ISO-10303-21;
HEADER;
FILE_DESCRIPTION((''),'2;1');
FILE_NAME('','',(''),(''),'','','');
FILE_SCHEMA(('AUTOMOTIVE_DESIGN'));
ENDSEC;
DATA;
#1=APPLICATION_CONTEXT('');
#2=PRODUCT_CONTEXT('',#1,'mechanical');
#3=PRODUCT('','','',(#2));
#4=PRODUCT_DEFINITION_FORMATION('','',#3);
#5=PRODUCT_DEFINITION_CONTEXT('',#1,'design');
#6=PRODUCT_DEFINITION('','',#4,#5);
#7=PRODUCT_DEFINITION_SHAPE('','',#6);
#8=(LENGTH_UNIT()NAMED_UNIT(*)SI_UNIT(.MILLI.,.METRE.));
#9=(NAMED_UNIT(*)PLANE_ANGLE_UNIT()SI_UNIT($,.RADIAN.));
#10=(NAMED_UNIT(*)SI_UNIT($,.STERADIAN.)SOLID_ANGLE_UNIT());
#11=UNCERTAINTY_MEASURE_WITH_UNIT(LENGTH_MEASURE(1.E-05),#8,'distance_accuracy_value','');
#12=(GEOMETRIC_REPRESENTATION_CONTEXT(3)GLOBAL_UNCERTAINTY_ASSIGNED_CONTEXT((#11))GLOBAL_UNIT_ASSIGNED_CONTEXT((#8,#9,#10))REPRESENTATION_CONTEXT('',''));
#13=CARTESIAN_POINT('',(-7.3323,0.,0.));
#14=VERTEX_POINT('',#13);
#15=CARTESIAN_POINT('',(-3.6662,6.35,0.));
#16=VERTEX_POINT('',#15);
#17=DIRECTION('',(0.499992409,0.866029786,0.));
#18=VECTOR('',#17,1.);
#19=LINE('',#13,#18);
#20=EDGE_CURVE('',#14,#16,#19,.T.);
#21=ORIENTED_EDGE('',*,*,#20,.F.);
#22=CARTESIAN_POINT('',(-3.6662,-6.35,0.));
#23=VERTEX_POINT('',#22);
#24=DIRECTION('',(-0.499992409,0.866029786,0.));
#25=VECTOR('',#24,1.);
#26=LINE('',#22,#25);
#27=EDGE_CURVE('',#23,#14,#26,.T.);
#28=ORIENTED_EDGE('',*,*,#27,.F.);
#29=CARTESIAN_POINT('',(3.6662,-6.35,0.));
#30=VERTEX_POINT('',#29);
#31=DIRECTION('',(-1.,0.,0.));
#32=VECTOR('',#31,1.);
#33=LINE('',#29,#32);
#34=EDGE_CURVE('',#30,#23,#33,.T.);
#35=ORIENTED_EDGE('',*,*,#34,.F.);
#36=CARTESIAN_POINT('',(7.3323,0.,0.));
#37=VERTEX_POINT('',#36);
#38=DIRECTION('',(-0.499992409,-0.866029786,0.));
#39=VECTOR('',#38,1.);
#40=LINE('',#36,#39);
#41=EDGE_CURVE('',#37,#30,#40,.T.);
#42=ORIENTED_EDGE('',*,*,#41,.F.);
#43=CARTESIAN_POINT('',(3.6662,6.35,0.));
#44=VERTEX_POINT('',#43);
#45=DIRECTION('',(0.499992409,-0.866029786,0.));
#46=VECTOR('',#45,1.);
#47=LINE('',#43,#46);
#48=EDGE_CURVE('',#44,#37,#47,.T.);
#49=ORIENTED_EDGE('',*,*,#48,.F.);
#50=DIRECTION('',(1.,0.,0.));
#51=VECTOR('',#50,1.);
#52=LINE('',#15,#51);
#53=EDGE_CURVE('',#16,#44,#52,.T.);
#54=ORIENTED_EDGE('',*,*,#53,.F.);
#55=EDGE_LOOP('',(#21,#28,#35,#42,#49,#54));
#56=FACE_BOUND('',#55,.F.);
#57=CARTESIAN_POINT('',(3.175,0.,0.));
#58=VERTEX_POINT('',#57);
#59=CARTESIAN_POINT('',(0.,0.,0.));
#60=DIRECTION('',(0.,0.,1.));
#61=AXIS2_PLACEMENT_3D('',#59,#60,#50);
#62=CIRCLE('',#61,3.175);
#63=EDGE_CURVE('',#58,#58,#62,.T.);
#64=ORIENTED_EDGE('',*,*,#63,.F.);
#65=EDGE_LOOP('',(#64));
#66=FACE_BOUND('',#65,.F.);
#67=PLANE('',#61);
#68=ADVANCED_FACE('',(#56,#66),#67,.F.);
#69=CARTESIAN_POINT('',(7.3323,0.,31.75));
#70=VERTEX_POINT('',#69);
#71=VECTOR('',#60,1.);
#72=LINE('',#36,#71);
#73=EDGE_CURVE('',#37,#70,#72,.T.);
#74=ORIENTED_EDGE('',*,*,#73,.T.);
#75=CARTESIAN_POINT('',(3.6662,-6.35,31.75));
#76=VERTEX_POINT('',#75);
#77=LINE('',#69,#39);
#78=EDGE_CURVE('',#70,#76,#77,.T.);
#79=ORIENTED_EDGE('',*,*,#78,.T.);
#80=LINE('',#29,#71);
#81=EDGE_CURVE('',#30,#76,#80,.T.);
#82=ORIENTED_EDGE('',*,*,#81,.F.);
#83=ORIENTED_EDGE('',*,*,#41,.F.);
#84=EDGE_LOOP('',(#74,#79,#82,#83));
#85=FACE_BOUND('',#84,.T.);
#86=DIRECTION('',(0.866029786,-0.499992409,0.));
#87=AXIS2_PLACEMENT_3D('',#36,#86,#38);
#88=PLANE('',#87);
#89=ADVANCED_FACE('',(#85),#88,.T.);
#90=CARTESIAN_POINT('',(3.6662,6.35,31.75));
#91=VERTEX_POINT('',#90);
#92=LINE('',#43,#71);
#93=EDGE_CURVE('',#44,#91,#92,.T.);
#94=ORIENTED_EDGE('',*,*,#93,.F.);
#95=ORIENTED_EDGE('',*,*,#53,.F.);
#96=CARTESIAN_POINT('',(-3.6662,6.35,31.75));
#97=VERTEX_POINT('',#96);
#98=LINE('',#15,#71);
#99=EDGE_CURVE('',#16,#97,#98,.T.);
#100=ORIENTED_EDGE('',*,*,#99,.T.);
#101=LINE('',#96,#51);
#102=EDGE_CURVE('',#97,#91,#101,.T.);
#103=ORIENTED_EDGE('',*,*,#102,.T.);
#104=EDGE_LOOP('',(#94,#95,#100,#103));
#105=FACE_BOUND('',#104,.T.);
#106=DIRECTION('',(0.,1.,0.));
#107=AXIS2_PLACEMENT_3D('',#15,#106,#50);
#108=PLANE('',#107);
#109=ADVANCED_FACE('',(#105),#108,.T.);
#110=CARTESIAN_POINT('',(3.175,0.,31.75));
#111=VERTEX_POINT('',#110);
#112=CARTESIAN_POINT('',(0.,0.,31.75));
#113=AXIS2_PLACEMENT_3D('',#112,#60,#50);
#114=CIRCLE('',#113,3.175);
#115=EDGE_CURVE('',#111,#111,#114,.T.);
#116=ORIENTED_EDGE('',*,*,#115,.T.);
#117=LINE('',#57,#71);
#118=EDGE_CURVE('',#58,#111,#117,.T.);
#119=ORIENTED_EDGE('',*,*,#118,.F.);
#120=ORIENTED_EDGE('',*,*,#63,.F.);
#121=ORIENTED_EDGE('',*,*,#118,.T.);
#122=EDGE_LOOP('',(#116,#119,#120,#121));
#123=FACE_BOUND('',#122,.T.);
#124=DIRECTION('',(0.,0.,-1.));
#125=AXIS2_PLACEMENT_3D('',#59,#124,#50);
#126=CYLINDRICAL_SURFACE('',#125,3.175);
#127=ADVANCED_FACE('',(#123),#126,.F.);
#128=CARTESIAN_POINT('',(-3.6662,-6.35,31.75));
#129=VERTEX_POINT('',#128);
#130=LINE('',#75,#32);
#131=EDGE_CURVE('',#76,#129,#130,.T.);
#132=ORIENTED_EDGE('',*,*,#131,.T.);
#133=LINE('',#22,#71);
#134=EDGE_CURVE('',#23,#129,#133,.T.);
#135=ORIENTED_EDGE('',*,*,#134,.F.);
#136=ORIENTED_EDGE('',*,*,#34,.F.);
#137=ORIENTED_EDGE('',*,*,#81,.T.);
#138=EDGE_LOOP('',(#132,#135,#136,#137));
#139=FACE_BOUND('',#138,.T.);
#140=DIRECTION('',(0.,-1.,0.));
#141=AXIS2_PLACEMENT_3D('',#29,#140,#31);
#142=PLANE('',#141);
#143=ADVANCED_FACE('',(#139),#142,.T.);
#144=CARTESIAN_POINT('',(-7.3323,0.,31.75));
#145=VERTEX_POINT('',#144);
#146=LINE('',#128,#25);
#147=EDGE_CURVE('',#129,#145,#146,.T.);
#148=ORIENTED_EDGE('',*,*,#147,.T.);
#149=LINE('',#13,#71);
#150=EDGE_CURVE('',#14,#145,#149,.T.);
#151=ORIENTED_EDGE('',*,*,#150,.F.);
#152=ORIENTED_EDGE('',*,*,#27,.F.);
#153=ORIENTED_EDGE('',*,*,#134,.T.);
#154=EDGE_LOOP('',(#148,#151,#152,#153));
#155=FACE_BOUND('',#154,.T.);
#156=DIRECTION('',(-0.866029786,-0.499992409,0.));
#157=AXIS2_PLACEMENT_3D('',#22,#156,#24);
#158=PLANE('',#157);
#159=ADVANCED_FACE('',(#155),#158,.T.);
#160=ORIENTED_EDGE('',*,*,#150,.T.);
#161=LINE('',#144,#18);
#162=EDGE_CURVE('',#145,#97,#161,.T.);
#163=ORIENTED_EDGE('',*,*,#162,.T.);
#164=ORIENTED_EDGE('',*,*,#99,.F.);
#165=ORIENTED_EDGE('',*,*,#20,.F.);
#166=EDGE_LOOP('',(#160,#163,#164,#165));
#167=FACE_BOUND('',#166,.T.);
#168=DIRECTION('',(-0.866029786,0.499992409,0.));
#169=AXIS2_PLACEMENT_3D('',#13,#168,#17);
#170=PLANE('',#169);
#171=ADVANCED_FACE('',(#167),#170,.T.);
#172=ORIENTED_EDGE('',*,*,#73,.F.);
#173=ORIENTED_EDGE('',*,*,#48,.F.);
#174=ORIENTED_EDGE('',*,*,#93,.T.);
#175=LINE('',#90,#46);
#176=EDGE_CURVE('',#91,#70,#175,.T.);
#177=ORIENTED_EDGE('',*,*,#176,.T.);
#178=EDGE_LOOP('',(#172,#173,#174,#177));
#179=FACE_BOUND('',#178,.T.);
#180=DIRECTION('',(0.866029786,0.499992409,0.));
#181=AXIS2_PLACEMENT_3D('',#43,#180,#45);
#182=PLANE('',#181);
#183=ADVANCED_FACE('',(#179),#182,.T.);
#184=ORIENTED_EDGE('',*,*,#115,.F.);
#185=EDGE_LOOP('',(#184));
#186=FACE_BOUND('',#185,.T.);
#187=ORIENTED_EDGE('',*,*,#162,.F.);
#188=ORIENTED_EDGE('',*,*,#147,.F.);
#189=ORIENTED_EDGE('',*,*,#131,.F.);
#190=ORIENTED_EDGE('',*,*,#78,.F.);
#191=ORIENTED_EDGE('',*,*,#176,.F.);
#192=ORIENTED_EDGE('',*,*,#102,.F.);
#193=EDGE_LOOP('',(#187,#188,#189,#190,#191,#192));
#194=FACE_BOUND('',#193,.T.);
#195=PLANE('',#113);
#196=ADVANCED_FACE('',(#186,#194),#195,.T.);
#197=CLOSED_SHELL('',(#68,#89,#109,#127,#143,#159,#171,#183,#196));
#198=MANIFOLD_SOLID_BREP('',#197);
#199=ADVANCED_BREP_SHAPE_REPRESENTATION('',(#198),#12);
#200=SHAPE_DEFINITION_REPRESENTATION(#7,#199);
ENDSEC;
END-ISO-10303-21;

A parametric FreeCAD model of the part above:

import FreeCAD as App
import Part
import Sketcher
from FreeCAD import Vector
Q = App.Units.Quantity


def add_polygon(sketch, points):
    """Adds a closed chain of lines whose ends are joined by coincident constraints."""
    first, n = sketch.GeometryCount, len(points)
    for a, b in zip(points, points[1:] + points[:1]):
        sketch.addGeometry(Part.LineSegment(App.Vector(*a, 0), App.Vector(*b, 0)), False)
    for i in range(n):
        sketch.addConstraint(Sketcher.Constraint("Coincident", first + i, 2, first + (i + 1) % n, 1))

doc = App.newDocument("Part")
body = doc.addObject("PartDesign::Body", "Body")

sketch1 = body.newObject("Sketcher::SketchObject", "Sketch")
sketch1.AttachmentSupport = (doc.getObject("XY_Plane"), [""])
sketch1.MapMode = "FlatFace"
add_polygon(sketch1, [(7.3323, 0), (3.6662, 6.35), (-3.6662, 6.35), (-7.3323, 0), (-3.6662, -6.35), (3.6662, -6.35)])
sketch1.addGeometry(Part.Circle(Vector(0, 0, 0), Vector(0, 0, 1), 3.175), False)
sketch1.addConstraint([
    Sketcher.Constraint("Horizontal", 1),
    Sketcher.Constraint("Horizontal", 4),
    Sketcher.Constraint("Coincident", 6, 3, -1, 1),
    Sketcher.Constraint("Symmetric", 0, 2, 3, 2, -1, 1),
    Sketcher.Constraint("Symmetric", 2, 2, 5, 2, -1, 1),
    Sketcher.Constraint("PointOnObject", 2, 2, -1),
    Sketcher.Constraint("Parallel", 2, 5),
    Sketcher.Constraint("Vertical", 1, 2, 3, 2),
    Sketcher.Constraint("Diameter", 6, Q("0.25 in")),
    Sketcher.Constraint("DistanceY", 3, 2, 1, 2, Q("0.5 in")),
    Sketcher.Constraint("Angle", 0, Q("119.9995 deg")),
    Sketcher.Constraint("DistanceX", 2, 2, 0, 2, Q("0.433 in")),
])
pad1 = body.newObject("PartDesign::Pad", "Pad")
pad1.Profile = sketch1
pad1.Length = Q("1.25 in")

doc.recompute()
